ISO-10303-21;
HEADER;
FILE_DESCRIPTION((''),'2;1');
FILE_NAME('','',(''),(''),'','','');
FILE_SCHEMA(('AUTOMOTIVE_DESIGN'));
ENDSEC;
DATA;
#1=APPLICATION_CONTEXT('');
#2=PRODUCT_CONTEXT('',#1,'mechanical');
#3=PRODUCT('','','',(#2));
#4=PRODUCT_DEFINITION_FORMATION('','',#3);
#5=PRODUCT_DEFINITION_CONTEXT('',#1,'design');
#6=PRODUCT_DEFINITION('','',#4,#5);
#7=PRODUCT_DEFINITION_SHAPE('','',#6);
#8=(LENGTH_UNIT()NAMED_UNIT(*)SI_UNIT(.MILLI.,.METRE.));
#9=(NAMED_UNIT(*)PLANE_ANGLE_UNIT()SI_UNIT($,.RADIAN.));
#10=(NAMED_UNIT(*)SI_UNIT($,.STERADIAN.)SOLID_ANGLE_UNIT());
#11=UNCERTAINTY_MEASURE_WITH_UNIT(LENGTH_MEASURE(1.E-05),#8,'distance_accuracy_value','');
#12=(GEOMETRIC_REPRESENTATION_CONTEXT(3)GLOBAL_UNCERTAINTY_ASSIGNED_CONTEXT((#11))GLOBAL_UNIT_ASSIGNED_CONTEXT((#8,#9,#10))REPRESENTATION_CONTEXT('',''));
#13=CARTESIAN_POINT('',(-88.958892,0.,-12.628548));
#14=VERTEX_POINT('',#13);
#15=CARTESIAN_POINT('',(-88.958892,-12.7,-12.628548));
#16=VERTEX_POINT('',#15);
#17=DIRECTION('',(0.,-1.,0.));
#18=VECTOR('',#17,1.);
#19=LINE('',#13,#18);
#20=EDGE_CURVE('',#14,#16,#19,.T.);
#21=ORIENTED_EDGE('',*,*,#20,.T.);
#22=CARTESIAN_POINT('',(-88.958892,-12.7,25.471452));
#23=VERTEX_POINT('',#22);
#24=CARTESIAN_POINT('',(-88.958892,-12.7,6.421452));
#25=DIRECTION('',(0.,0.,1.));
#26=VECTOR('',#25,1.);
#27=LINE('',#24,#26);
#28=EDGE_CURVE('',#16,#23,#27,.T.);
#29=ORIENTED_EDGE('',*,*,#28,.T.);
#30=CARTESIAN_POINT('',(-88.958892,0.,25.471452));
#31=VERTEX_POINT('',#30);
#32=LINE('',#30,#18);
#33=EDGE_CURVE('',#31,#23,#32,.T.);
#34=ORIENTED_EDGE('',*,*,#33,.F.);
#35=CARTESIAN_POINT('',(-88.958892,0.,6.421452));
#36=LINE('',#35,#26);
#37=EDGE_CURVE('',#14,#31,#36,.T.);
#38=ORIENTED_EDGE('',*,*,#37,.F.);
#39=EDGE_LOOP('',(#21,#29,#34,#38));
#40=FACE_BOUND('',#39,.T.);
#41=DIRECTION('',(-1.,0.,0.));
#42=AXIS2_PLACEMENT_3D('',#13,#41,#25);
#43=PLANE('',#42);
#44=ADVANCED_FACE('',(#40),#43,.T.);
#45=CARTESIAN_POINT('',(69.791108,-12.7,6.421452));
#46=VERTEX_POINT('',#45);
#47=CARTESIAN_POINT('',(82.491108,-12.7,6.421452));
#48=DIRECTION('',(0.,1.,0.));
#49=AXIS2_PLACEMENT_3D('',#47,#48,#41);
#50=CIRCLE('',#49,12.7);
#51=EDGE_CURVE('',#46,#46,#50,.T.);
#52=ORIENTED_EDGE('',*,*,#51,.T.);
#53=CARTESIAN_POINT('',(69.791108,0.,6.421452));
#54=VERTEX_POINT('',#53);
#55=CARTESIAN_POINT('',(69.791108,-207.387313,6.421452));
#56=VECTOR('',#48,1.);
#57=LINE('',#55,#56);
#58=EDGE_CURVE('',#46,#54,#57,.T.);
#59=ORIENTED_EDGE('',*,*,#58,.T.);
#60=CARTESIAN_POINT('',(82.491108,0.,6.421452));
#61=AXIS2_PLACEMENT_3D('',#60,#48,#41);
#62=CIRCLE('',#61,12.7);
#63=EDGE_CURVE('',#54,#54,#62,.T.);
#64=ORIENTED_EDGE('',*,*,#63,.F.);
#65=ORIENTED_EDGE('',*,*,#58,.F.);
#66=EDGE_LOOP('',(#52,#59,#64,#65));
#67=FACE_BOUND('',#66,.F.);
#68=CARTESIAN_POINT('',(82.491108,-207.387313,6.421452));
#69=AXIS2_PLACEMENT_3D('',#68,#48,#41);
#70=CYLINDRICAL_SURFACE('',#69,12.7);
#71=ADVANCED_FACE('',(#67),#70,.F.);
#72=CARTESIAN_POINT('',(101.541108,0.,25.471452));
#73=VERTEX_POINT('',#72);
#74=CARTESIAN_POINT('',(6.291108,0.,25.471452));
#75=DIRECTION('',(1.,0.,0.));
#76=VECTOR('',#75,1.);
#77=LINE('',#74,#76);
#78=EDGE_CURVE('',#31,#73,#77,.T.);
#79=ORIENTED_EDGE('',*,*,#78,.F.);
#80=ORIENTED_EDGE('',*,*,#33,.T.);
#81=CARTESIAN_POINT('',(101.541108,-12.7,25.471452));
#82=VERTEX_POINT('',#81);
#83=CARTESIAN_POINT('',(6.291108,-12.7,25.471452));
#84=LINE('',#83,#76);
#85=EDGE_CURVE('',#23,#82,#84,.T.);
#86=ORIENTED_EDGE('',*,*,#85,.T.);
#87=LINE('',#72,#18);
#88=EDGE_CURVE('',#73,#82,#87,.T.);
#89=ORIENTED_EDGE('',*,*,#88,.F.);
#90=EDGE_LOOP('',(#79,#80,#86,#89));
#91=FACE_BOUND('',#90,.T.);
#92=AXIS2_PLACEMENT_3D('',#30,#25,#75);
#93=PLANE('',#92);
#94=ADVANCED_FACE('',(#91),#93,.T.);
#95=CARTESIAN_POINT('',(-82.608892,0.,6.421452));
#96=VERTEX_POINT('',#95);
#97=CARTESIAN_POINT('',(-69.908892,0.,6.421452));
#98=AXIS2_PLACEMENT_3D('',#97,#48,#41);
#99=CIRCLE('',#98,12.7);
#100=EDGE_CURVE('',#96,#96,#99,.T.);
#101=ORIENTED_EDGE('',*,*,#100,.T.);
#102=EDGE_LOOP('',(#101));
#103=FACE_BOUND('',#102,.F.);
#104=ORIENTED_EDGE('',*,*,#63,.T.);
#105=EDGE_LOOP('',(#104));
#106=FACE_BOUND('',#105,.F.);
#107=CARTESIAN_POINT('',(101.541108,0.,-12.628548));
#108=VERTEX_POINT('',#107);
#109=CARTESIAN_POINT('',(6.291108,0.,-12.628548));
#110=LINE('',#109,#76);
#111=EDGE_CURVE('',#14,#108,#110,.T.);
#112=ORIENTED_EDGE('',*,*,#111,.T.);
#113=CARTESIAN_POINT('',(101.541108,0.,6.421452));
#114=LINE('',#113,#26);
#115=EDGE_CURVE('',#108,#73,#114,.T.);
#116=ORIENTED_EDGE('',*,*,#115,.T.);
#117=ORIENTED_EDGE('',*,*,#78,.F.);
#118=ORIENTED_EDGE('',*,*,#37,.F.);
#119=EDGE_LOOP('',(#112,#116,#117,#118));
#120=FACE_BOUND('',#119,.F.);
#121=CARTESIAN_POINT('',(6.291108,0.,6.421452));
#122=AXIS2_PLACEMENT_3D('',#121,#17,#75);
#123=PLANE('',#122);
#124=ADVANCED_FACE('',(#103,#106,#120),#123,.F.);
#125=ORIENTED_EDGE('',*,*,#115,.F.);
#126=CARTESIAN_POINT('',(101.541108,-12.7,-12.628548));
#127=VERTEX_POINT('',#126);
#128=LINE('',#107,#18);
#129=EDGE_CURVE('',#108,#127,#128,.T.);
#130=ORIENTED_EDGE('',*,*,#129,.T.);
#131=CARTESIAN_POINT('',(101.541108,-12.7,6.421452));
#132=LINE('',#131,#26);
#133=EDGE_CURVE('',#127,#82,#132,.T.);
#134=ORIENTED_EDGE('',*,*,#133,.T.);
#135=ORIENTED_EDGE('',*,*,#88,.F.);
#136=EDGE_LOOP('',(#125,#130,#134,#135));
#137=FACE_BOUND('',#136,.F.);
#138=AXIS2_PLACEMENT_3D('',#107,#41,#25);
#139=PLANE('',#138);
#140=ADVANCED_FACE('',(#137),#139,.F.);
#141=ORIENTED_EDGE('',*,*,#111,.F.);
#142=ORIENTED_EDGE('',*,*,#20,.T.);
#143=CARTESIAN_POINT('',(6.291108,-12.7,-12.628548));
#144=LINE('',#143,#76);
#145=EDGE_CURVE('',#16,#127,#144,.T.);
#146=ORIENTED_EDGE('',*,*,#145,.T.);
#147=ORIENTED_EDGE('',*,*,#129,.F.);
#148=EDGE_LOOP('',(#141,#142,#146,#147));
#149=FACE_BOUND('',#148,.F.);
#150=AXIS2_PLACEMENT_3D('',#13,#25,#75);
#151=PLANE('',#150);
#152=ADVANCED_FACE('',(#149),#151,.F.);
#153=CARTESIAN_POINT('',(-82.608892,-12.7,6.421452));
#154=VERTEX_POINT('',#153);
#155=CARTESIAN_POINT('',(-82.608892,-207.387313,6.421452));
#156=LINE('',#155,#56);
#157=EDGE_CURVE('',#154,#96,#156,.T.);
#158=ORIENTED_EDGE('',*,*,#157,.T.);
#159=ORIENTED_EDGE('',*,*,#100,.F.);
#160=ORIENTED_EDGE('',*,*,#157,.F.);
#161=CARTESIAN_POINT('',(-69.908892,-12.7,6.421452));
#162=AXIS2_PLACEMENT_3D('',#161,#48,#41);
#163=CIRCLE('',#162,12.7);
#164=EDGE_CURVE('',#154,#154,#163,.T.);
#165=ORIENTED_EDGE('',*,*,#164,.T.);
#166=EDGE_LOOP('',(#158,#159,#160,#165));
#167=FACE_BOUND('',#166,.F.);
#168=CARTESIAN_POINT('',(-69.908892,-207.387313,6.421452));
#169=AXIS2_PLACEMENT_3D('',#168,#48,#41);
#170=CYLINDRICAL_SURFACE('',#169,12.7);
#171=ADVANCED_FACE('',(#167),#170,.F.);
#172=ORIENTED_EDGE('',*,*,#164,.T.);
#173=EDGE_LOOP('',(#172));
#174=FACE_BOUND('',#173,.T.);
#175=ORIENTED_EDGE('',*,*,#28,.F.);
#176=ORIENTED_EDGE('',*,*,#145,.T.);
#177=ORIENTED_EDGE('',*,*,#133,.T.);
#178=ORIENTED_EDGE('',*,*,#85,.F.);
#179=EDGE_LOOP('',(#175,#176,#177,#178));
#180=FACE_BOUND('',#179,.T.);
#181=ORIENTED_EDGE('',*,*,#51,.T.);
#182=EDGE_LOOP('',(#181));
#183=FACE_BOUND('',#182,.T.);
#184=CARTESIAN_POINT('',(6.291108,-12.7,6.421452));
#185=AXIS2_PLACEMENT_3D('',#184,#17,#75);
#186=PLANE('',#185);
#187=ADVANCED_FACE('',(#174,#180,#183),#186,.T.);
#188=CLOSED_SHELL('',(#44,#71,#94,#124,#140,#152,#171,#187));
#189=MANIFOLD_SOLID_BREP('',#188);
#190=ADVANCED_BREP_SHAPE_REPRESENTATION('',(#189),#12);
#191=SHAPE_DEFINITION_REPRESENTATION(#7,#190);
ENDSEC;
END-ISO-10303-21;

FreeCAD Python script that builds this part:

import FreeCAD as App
import Part
import Sketcher
from FreeCAD import Vector
Q = App.Units.Quantity

doc = App.newDocument("Part")
params = doc.addObject("Spreadsheet::Sheet", "Params")
for row, (alias, value) in enumerate([
    ("sketch1_width", "7.5 in"),
    ("sketch1_height", "1.5 in"),
    ("pad1_length", "0.5 in"),
    ("sketch2_diameter", "1 in"),
    ("hole_diameter", "1 in"),
], start=1):
    params.set(f"A{row}", alias)
    params.set(f"B{row}", "=" + value)
    params.setAlias(f"B{row}", alias)

body = doc.addObject("PartDesign::Body", "Body")

# Sketch on XZ plane
sketch1 = body.newObject("Sketcher::SketchObject", "Sketch")
sketch1.AttachmentSupport = (doc.getObject("XZ_Plane"), [""])
sketch1.MapMode = "FlatFace"
sketch1.addGeometry([
    Part.LineSegment(Vector(-89, 25, 0), Vector(-89, -13, 0)),
    Part.LineSegment(Vector(-89, -13, 0), Vector(102, -13, 0)),
    Part.LineSegment(Vector(102, -13, 0), Vector(102, 25, 0)),
    Part.LineSegment(Vector(102, 25, 0), Vector(-89, 25, 0)),
], False)
sketch1.addConstraint([
    Sketcher.Constraint("Coincident", 0, 2, 1, 1),
    Sketcher.Constraint("Coincident", 1, 2, 2, 1),
    Sketcher.Constraint("Coincident", 2, 2, 3, 1),
    Sketcher.Constraint("Coincident", 3, 2, 0, 1),
    Sketcher.Constraint("Vertical", 0),
    Sketcher.Constraint("Horizontal", 1),
    Sketcher.Constraint("Vertical", 2),
    Sketcher.Constraint("Horizontal", 3),
    Sketcher.Constraint("DistanceX", 1, 1, 1, 2, Q("7.5 in")),
    Sketcher.Constraint("DistanceY", 0, 2, 0, 1, Q("1.5 in")),
    Sketcher.Constraint("DistanceY", -1, 1, 2, 2, Q("25.471452 mm")),
    Sketcher.Constraint("DistanceX", 0, 2, -1, 1, Q("88.958892 mm")),
])
sketch1.setExpression("Constraints[8]", "Params.sketch1_width")
sketch1.setExpression("Constraints[9]", "Params.sketch1_height")
pad1 = body.newObject("PartDesign::Pad", "Pad")
pad1.Profile = sketch1
pad1.setExpression("Length", "Params.pad1_length")

# Sketch on XZ plane
sketch2 = body.newObject("Sketcher::SketchObject", "Sketch001")
sketch2.AttachmentSupport = (doc.getObject("XZ_Plane"), [""])
sketch2.MapMode = "FlatFace"
sketch2.AttachmentOffset = App.Placement(Vector(0, 0, 0.5 * 25.4), App.Rotation())
sketch2.addGeometry([
    Part.Circle(Vector(-70, 6, 0), Vector(0, 0, 1), 13),
    Part.Circle(Vector(82, 6, 0), Vector(0, 0, 1), 13),
], False)
sketch2.addConstraint([
    Sketcher.Constraint("Equal", 0, 1),
    Sketcher.Constraint("Horizontal", 0, 3, 1, 3),
    Sketcher.Constraint("Diameter", 0, Q("1 in")),
    Sketcher.Constraint("DistanceX", 0, 3, 1, 3, Q("6 in")),
    Sketcher.Constraint("DistanceX", 0, 3, -1, 1, Q("69.908892 mm")),
    Sketcher.Constraint("DistanceY", -1, 1, 0, 3, Q("6.421452 mm")),
])
sketch2.setExpression("Constraints[2]", "Params.sketch2_diameter")
doc.recompute()
hole = body.newObject("PartDesign::Hole", "Hole")
hole.Profile = sketch2
hole.ThreadType = "None"
hole.setExpression("Diameter", "Params.hole_diameter")
hole.DepthType = "ThroughAll"

doc.recompute()
